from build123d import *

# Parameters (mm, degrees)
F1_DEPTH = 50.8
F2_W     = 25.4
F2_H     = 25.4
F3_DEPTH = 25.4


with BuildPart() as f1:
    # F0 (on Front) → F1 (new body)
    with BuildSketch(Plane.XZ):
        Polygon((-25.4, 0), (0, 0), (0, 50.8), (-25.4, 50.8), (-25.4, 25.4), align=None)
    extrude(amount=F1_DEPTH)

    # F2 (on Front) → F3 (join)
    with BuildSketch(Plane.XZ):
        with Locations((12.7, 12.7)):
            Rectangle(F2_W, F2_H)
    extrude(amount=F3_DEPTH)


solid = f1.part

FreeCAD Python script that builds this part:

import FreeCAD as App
import Part
import Sketcher
Q = App.Units.Quantity

doc = App.newDocument("Part")
body = doc.addObject("PartDesign::Body", "Body")

sketch1 = doc.addObject("Sketcher::SketchObject", "Sketch")
body.addObject(sketch1)
sketch1.AttachmentSupport = (doc.XZ_Plane, [""])
sketch1.MapMode = "FlatFace"
sketch1.addGeometry([
    Part.LineSegment(App.Vector(-25.4, 0, 0), App.Vector(0, 0, 0)),
    Part.LineSegment(App.Vector(0, 0, 0), App.Vector(0, 50.8, 0)),
    Part.LineSegment(App.Vector(0, 50.8, 0), App.Vector(-25.4, 50.8, 0)),
    Part.LineSegment(App.Vector(-25.4, 50.8, 0), App.Vector(-25.4, 0, 0)),
], False)
sketch1.addConstraint([
    Sketcher.Constraint("Coincident", 0, 2, 1, 1),
    Sketcher.Constraint("Coincident", 1, 2, 2, 1),
    Sketcher.Constraint("Coincident", 2, 2, 3, 1),
    Sketcher.Constraint("Coincident", 3, 2, 0, 1),
    Sketcher.Constraint("Horizontal", 0),
    Sketcher.Constraint("Vertical", 1),
    Sketcher.Constraint("Horizontal", 2),
    Sketcher.Constraint("Vertical", 3),
    Sketcher.Constraint("Coincident", 0, 2, -1, 1),
    Sketcher.Constraint("DistanceX", 0, 1, 0, 2, Q("1 in")),
    Sketcher.Constraint("DistanceY", 1, 1, 1, 2, Q("2 in")),
])
pad1 = doc.addObject("PartDesign::Pad", "Pad")
body.addObject(pad1)
pad1.Profile = sketch1
pad1.Length = Q("2 in")

sketch2 = doc.addObject("Sketcher::SketchObject", "Sketch001")
body.addObject(sketch2)
sketch2.AttachmentSupport = (doc.XZ_Plane, [""])
sketch2.MapMode = "FlatFace"
sketch2.addGeometry([
    Part.LineSegment(App.Vector(0, 25.4, 0), App.Vector(0, 0, 0)),
    Part.LineSegment(App.Vector(0, 0, 0), App.Vector(25.4, 0, 0)),
    Part.LineSegment(App.Vector(25.4, 0, 0), App.Vector(25.4, 25.4, 0)),
    Part.LineSegment(App.Vector(25.4, 25.4, 0), App.Vector(0, 25.4, 0)),
], False)
sketch2.addConstraint([
    Sketcher.Constraint("Coincident", 0, 2, 1, 1),
    Sketcher.Constraint("Coincident", 1, 2, 2, 1),
    Sketcher.Constraint("Coincident", 2, 2, 3, 1),
    Sketcher.Constraint("Coincident", 3, 2, 0, 1),
    Sketcher.Constraint("Vertical", 0),
    Sketcher.Constraint("Horizontal", 1),
    Sketcher.Constraint("Vertical", 2),
    Sketcher.Constraint("Horizontal", 3),
    Sketcher.Constraint("Coincident", 0, 2, -1, 1),
    Sketcher.Constraint("Equal", 3, 0),
    Sketcher.Constraint("DistanceX", 1, 1, 1, 2, Q("1 in")),
])
pad2 = doc.addObject("PartDesign::Pad", "Pad001")
body.addObject(pad2)
pad2.Profile = sketch2
pad2.Length = Q("1 in")

doc.recompute()
